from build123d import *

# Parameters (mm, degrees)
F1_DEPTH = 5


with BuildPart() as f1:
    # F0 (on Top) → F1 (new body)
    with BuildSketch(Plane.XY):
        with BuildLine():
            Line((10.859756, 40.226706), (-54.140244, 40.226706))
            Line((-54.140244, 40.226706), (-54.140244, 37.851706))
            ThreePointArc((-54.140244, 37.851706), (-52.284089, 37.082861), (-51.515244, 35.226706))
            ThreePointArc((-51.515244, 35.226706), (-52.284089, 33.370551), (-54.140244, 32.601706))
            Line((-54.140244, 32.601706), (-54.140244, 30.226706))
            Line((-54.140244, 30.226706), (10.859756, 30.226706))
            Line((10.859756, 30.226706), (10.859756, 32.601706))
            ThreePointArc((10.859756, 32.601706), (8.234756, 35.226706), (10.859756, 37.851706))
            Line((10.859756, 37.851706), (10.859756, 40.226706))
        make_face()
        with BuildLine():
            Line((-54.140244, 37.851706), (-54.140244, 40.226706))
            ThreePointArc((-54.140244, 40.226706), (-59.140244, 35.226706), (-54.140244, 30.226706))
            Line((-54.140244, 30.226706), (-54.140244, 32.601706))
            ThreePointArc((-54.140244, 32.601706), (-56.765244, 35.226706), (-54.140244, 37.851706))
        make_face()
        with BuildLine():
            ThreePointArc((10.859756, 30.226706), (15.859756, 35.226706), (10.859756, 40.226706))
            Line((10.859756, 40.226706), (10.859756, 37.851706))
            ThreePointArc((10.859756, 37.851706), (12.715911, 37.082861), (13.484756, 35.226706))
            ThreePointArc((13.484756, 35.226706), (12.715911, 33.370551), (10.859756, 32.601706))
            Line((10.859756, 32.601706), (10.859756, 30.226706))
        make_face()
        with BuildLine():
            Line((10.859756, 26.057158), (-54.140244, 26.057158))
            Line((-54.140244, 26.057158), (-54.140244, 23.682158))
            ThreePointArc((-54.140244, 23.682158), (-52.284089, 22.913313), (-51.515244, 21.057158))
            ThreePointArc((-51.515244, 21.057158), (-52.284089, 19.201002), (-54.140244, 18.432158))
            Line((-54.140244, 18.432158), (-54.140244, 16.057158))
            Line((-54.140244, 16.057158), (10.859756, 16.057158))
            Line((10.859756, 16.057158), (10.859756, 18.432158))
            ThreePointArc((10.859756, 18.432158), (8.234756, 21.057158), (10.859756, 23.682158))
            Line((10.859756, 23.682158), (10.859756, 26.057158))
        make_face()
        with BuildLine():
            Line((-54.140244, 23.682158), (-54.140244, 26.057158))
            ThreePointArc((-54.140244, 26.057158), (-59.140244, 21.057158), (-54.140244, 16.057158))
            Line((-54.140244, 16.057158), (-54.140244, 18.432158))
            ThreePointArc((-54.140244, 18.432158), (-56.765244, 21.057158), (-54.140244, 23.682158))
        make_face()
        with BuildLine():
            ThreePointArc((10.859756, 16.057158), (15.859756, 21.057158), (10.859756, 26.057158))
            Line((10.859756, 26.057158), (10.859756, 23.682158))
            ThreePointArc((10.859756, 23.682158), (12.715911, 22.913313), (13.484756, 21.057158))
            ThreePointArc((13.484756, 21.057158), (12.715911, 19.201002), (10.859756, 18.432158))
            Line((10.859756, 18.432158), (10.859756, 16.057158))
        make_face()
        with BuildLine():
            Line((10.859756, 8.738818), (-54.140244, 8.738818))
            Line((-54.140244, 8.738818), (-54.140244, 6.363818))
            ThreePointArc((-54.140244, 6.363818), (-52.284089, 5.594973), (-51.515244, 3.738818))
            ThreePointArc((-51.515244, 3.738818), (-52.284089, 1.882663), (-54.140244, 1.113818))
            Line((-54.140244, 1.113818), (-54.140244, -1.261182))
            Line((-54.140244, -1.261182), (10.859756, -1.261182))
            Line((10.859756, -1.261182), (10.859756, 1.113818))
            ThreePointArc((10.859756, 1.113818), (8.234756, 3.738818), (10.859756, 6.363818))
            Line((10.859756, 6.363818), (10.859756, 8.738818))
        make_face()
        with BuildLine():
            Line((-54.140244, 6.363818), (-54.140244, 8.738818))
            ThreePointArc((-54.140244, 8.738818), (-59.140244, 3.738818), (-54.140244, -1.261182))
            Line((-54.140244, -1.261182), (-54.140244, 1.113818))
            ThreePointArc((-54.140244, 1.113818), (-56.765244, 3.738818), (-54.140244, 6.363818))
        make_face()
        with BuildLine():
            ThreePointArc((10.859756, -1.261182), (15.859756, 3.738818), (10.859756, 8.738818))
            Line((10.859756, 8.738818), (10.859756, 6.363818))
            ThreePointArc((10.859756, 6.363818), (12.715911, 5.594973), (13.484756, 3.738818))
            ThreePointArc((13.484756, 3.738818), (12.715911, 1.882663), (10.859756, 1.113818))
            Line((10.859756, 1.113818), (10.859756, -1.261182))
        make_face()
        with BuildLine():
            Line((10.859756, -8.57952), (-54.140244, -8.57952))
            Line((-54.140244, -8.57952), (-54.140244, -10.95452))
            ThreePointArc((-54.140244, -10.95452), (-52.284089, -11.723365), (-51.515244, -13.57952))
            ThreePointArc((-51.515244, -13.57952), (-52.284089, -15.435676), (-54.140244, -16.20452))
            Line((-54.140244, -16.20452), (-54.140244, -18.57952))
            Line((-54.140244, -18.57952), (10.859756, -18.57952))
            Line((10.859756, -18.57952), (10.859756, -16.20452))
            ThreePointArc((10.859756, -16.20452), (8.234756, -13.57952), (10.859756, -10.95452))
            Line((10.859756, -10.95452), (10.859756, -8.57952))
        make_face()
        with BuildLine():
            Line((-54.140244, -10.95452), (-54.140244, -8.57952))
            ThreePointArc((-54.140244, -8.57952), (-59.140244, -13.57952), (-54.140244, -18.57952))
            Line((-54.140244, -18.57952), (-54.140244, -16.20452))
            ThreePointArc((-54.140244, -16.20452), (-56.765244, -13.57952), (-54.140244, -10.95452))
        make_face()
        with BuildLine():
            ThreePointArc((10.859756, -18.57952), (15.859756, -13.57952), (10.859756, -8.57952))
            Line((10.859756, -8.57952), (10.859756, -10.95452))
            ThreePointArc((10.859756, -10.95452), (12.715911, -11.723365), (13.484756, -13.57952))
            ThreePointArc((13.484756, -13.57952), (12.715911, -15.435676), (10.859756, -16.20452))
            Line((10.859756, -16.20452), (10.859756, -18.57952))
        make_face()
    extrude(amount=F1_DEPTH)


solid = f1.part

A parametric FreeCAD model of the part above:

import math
import FreeCAD as App
import Part
import Sketcher
Q = App.Units.Quantity

doc = App.newDocument("Part")
body = doc.addObject("PartDesign::Body", "Body")
body.AllowCompound = True

sketch1 = doc.addObject("Sketcher::SketchObject", "Sketch")
body.addObject(sketch1)
sketch1.AttachmentSupport = (doc.XY_Plane, [""])
sketch1.MapMode = "FlatFace"
sketch1.addGeometry([
    Part.LineSegment(App.Vector(10.9, 40.2, 0), App.Vector(-54.1, 40.2, 0)),
    Part.ArcOfCircle(Part.Circle(App.Vector(-54.1, 35.2, 0), App.Vector(0, 0, 1), 5), math.radians(90), math.radians(270)),
    Part.LineSegment(App.Vector(-54.1, 30.2, 0), App.Vector(10.9, 30.2, 0)),
    Part.ArcOfCircle(Part.Circle(App.Vector(10.9, 35.2, 0), App.Vector(0, 0, 1), 5), math.radians(-90), math.radians(90)),
    Part.ArcOfCircle(Part.Circle(App.Vector(10.9, 35.2, 0), App.Vector(0, 0, 1), 2.6), math.radians(90), math.radians(270)),
    Part.ArcOfCircle(Part.Circle(App.Vector(10.9, 35.2, 0), App.Vector(0, 0, 1), 2.6), math.radians(0), math.radians(90)),
    Part.ArcOfCircle(Part.Circle(App.Vector(10.9, 35.2, 0), App.Vector(0, 0, 1), 2.6), math.radians(-90), math.radians(0)),
    Part.ArcOfCircle(Part.Circle(App.Vector(-54.1, 35.2, 0), App.Vector(0, 0, 1), 2.6), math.radians(0), math.radians(90)),
    Part.ArcOfCircle(Part.Circle(App.Vector(-54.1, 35.2, 0), App.Vector(0, 0, 1), 2.6), math.radians(-90), math.radians(0)),
    Part.ArcOfCircle(Part.Circle(App.Vector(-54.1, 35.2, 0), App.Vector(0, 0, 1), 2.6), math.radians(90), math.radians(270)),
    Part.LineSegment(App.Vector(10.9, 26.1, 0), App.Vector(-54.1, 26.1, 0)),
    Part.ArcOfCircle(Part.Circle(App.Vector(-54.1, 21.1, 0), App.Vector(0, 0, 1), 5), math.radians(90), math.radians(270)),
    Part.LineSegment(App.Vector(-54.1, 16.1, 0), App.Vector(10.9, 16.1, 0)),
    Part.ArcOfCircle(Part.Circle(App.Vector(10.9, 21.1, 0), App.Vector(0, 0, 1), 5), math.radians(-90), math.radians(90)),
    Part.ArcOfCircle(Part.Circle(App.Vector(10.9, 21.1, 0), App.Vector(0, 0, 1), 2.6), math.radians(90), math.radians(270)),
    Part.ArcOfCircle(Part.Circle(App.Vector(10.9, 21.1, 0), App.Vector(0, 0, 1), 2.6), math.radians(0), math.radians(90)),
    Part.ArcOfCircle(Part.Circle(App.Vector(10.9, 21.1, 0), App.Vector(0, 0, 1), 2.6), math.radians(-90), math.radians(0)),
    Part.ArcOfCircle(Part.Circle(App.Vector(-54.1, 21.1, 0), App.Vector(0, 0, 1), 2.6), math.radians(0), math.radians(90)),
    Part.ArcOfCircle(Part.Circle(App.Vector(-54.1, 21.1, 0), App.Vector(0, 0, 1), 2.6), math.radians(-90), math.radians(0)),
    Part.ArcOfCircle(Part.Circle(App.Vector(-54.1, 21.1, 0), App.Vector(0, 0, 1), 2.6), math.radians(90), math.radians(270)),
    Part.LineSegment(App.Vector(10.9, 8.7, 0), App.Vector(-54.1, 8.7, 0)),
    Part.ArcOfCircle(Part.Circle(App.Vector(-54.1, 3.7, 0), App.Vector(0, 0, 1), 5), math.radians(90), math.radians(270)),
    Part.LineSegment(App.Vector(-54.1, -1.3, 0), App.Vector(10.9, -1.3, 0)),
    Part.ArcOfCircle(Part.Circle(App.Vector(10.9, 3.7, 0), App.Vector(0, 0, 1), 5), math.radians(-90), math.radians(90)),
    Part.ArcOfCircle(Part.Circle(App.Vector(10.9, 3.7, 0), App.Vector(0, 0, 1), 2.6), math.radians(90), math.radians(270)),
    Part.ArcOfCircle(Part.Circle(App.Vector(10.9, 3.7, 0), App.Vector(0, 0, 1), 2.6), math.radians(0), math.radians(90)),
    Part.ArcOfCircle(Part.Circle(App.Vector(10.9, 3.7, 0), App.Vector(0, 0, 1), 2.6), math.radians(-90), math.radians(0)),
    Part.ArcOfCircle(Part.Circle(App.Vector(-54.1, 3.7, 0), App.Vector(0, 0, 1), 2.6), math.radians(0), math.radians(90)),
    Part.ArcOfCircle(Part.Circle(App.Vector(-54.1, 3.7, 0), App.Vector(0, 0, 1), 2.6), math.radians(-90), math.radians(0)),
    Part.ArcOfCircle(Part.Circle(App.Vector(-54.1, 3.7, 0), App.Vector(0, 0, 1), 2.6), math.radians(90), math.radians(270)),
    Part.LineSegment(App.Vector(10.9, -8.6, 0), App.Vector(-54.1, -8.6, 0)),
    Part.ArcOfCircle(Part.Circle(App.Vector(-54.1, -13.6, 0), App.Vector(0, 0, 1), 5), math.radians(90), math.radians(270)),
    Part.LineSegment(App.Vector(-54.1, -18.6, 0), App.Vector(10.9, -18.6, 0)),
    Part.ArcOfCircle(Part.Circle(App.Vector(10.9, -13.6, 0), App.Vector(0, 0, 1), 5), math.radians(-90), math.radians(90)),
    Part.ArcOfCircle(Part.Circle(App.Vector(10.9, -13.6, 0), App.Vector(0, 0, 1), 2.6), math.radians(90), math.radians(270)),
    Part.ArcOfCircle(Part.Circle(App.Vector(10.9, -13.6, 0), App.Vector(0, 0, 1), 2.6), math.radians(0), math.radians(90)),
    Part.ArcOfCircle(Part.Circle(App.Vector(10.9, -13.6, 0), App.Vector(0, 0, 1), 2.6), math.radians(-90), math.radians(0)),
    Part.ArcOfCircle(Part.Circle(App.Vector(-54.1, -13.6, 0), App.Vector(0, 0, 1), 2.6), math.radians(0), math.radians(90)),
    Part.ArcOfCircle(Part.Circle(App.Vector(-54.1, -13.6, 0), App.Vector(0, 0, 1), 2.6), math.radians(-90), math.radians(0)),
    Part.ArcOfCircle(Part.Circle(App.Vector(-54.1, -13.6, 0), App.Vector(0, 0, 1), 2.6), math.radians(90), math.radians(270)),
], False)
sketch1.addConstraint([
    Sketcher.Constraint("Tangent", 0, 2, 1, 1),
    Sketcher.Constraint("Tangent", 1, 2, 2, 1),
    Sketcher.Constraint("Tangent", 2, 2, 3, 1),
    Sketcher.Constraint("Tangent", 3, 2, 0, 1),
    Sketcher.Constraint("Tangent", 4, 1, 5, 2),
    Sketcher.Constraint("Tangent", 5, 1, 6, 2),
    Sketcher.Constraint("Tangent", 6, 1, 4, 2),
    Sketcher.Constraint("Tangent", 7, 1, 8, 2),
    Sketcher.Constraint("Tangent", 8, 1, 9, 2),
    Sketcher.Constraint("Tangent", 9, 1, 7, 2),
    Sketcher.Constraint("Tangent", 10, 2, 11, 1),
    Sketcher.Constraint("Tangent", 11, 2, 12, 1),
    Sketcher.Constraint("Tangent", 12, 2, 13, 1),
    Sketcher.Constraint("Tangent", 13, 2, 10, 1),
    Sketcher.Constraint("Tangent", 14, 1, 15, 2),
    Sketcher.Constraint("Tangent", 15, 1, 16, 2),
    Sketcher.Constraint("Tangent", 16, 1, 14, 2),
    Sketcher.Constraint("Tangent", 17, 1, 18, 2),
    Sketcher.Constraint("Tangent", 18, 1, 19, 2),
    Sketcher.Constraint("Tangent", 19, 1, 17, 2),
    Sketcher.Constraint("Tangent", 20, 2, 21, 1),
    Sketcher.Constraint("Tangent", 21, 2, 22, 1),
    Sketcher.Constraint("Tangent", 22, 2, 23, 1),
    Sketcher.Constraint("Tangent", 23, 2, 20, 1),
    Sketcher.Constraint("Tangent", 24, 1, 25, 2),
    Sketcher.Constraint("Tangent", 25, 1, 26, 2),
    Sketcher.Constraint("Tangent", 26, 1, 24, 2),
    Sketcher.Constraint("Tangent", 27, 1, 28, 2),
    Sketcher.Constraint("Tangent", 28, 1, 29, 2),
    Sketcher.Constraint("Tangent", 29, 1, 27, 2),
    Sketcher.Constraint("Tangent", 30, 2, 31, 1),
    Sketcher.Constraint("Tangent", 31, 2, 32, 1),
    Sketcher.Constraint("Tangent", 32, 2, 33, 1),
    Sketcher.Constraint("Tangent", 33, 2, 30, 1),
    Sketcher.Constraint("Tangent", 34, 1, 35, 2),
    Sketcher.Constraint("Tangent", 35, 1, 36, 2),
    Sketcher.Constraint("Tangent", 36, 1, 34, 2),
    Sketcher.Constraint("Tangent", 37, 1, 38, 2),
    Sketcher.Constraint("Tangent", 38, 1, 39, 2),
    Sketcher.Constraint("Tangent", 39, 1, 37, 2),
    Sketcher.Constraint("Horizontal", 0),
    Sketcher.Constraint("Horizontal", 2),
    Sketcher.Constraint("Horizontal", 10),
    Sketcher.Constraint("Horizontal", 12),
    Sketcher.Constraint("Horizontal", 20),
    Sketcher.Constraint("Horizontal", 22),
    Sketcher.Constraint("Horizontal", 30),
    Sketcher.Constraint("Horizontal", 32),
    Sketcher.Constraint("Coincident", 4, 3, 3, 3),
    Sketcher.Constraint("Coincident", 7, 3, 1, 3),
    Sketcher.Constraint("Coincident", 14, 3, 13, 3),
    Sketcher.Constraint("Coincident", 17, 3, 11, 3),
    Sketcher.Constraint("Coincident", 24, 3, 23, 3),
    Sketcher.Constraint("Coincident", 27, 3, 21, 3),
    Sketcher.Constraint("Coincident", 34, 3, 33, 3),
    Sketcher.Constraint("Coincident", 37, 3, 31, 3),
    Sketcher.Constraint("Equal", 6, 7),
    Sketcher.Constraint("Equal", 3, 11),
    Sketcher.Constraint("Equal", 9, 14),
    Sketcher.Constraint("Equal", 16, 17),
    Sketcher.Constraint("Equal", 13, 21),
    Sketcher.Constraint("Equal", 19, 24),
    Sketcher.Constraint("Equal", 26, 27),
    Sketcher.Constraint("Equal", 23, 31),
    Sketcher.Constraint("Equal", 29, 34),
    Sketcher.Constraint("Equal", 36, 37),
    Sketcher.Constraint("Horizontal", 9, 3, 5, 1),
    Sketcher.Constraint("Horizontal", 5, 1, 7, 1),
    Sketcher.Constraint("Horizontal", 19, 3, 15, 1),
    Sketcher.Constraint("Horizontal", 15, 1, 17, 1),
    Sketcher.Constraint("Horizontal", 29, 3, 25, 1),
    Sketcher.Constraint("Horizontal", 25, 1, 27, 1),
    Sketcher.Constraint("Horizontal", 39, 3, 35, 1),
    Sketcher.Constraint("Horizontal", 35, 1, 37, 1),
    Sketcher.Constraint("Vertical", 9, 3, 11, 3),
    Sketcher.Constraint("Vertical", 6, 3, 13, 3),
    Sketcher.Constraint("Vertical", 19, 3, 21, 3),
    Sketcher.Constraint("Vertical", 16, 3, 23, 3),
    Sketcher.Constraint("Vertical", 29, 3, 31, 3),
    Sketcher.Constraint("Vertical", 26, 3, 33, 3),
    Sketcher.Constraint("Vertical", 3, 2, 4, 1),
    Sketcher.Constraint("Vertical", 4, 1, 6, 1),
    Sketcher.Constraint("Vertical", 1, 2, 8, 1),
    Sketcher.Constraint("Vertical", 8, 1, 9, 1),
    Sketcher.Constraint("Vertical", 13, 2, 14, 1),
    Sketcher.Constraint("Vertical", 14, 1, 16, 1),
    Sketcher.Constraint("Vertical", 11, 2, 18, 1),
    Sketcher.Constraint("Vertical", 18, 1, 19, 1),
    Sketcher.Constraint("Vertical", 23, 2, 24, 1),
    Sketcher.Constraint("Vertical", 24, 1, 26, 1),
    Sketcher.Constraint("Vertical", 21, 2, 28, 1),
    Sketcher.Constraint("Vertical", 28, 1, 29, 1),
    Sketcher.Constraint("Vertical", 33, 2, 34, 1),
    Sketcher.Constraint("Vertical", 34, 1, 36, 1),
    Sketcher.Constraint("Vertical", 31, 2, 38, 1),
    Sketcher.Constraint("Vertical", 38, 1, 39, 1),
    Sketcher.Constraint("Radius", 1, Q("5 mm")),
    Sketcher.Constraint("DistanceX", 0, 2, 0, 1, Q("65 mm")),
    Sketcher.Constraint("Radius", 4, Q("2.625 mm")),
    Sketcher.Constraint("DistanceY", -1, 1, 11, 3, Q("21.057158 mm")),
    Sketcher.Constraint("DistanceY", -1, 1, 21, 3, Q("3.738818 mm")),
    Sketcher.Constraint("DistanceY", 31, 3, -1, 1, Q("13.57952 mm")),
    Sketcher.Constraint("DistanceX", 1, 3, -1, 1, Q("54.140244 mm")),
    Sketcher.Constraint("DistanceY", -1, 1, 1, 3, Q("35.226706 mm")),
])
pad1 = doc.addObject("PartDesign::Pad", "Pad")
body.addObject(pad1)
pad1.Profile = sketch1
pad1.Length = 5

doc.recompute()
